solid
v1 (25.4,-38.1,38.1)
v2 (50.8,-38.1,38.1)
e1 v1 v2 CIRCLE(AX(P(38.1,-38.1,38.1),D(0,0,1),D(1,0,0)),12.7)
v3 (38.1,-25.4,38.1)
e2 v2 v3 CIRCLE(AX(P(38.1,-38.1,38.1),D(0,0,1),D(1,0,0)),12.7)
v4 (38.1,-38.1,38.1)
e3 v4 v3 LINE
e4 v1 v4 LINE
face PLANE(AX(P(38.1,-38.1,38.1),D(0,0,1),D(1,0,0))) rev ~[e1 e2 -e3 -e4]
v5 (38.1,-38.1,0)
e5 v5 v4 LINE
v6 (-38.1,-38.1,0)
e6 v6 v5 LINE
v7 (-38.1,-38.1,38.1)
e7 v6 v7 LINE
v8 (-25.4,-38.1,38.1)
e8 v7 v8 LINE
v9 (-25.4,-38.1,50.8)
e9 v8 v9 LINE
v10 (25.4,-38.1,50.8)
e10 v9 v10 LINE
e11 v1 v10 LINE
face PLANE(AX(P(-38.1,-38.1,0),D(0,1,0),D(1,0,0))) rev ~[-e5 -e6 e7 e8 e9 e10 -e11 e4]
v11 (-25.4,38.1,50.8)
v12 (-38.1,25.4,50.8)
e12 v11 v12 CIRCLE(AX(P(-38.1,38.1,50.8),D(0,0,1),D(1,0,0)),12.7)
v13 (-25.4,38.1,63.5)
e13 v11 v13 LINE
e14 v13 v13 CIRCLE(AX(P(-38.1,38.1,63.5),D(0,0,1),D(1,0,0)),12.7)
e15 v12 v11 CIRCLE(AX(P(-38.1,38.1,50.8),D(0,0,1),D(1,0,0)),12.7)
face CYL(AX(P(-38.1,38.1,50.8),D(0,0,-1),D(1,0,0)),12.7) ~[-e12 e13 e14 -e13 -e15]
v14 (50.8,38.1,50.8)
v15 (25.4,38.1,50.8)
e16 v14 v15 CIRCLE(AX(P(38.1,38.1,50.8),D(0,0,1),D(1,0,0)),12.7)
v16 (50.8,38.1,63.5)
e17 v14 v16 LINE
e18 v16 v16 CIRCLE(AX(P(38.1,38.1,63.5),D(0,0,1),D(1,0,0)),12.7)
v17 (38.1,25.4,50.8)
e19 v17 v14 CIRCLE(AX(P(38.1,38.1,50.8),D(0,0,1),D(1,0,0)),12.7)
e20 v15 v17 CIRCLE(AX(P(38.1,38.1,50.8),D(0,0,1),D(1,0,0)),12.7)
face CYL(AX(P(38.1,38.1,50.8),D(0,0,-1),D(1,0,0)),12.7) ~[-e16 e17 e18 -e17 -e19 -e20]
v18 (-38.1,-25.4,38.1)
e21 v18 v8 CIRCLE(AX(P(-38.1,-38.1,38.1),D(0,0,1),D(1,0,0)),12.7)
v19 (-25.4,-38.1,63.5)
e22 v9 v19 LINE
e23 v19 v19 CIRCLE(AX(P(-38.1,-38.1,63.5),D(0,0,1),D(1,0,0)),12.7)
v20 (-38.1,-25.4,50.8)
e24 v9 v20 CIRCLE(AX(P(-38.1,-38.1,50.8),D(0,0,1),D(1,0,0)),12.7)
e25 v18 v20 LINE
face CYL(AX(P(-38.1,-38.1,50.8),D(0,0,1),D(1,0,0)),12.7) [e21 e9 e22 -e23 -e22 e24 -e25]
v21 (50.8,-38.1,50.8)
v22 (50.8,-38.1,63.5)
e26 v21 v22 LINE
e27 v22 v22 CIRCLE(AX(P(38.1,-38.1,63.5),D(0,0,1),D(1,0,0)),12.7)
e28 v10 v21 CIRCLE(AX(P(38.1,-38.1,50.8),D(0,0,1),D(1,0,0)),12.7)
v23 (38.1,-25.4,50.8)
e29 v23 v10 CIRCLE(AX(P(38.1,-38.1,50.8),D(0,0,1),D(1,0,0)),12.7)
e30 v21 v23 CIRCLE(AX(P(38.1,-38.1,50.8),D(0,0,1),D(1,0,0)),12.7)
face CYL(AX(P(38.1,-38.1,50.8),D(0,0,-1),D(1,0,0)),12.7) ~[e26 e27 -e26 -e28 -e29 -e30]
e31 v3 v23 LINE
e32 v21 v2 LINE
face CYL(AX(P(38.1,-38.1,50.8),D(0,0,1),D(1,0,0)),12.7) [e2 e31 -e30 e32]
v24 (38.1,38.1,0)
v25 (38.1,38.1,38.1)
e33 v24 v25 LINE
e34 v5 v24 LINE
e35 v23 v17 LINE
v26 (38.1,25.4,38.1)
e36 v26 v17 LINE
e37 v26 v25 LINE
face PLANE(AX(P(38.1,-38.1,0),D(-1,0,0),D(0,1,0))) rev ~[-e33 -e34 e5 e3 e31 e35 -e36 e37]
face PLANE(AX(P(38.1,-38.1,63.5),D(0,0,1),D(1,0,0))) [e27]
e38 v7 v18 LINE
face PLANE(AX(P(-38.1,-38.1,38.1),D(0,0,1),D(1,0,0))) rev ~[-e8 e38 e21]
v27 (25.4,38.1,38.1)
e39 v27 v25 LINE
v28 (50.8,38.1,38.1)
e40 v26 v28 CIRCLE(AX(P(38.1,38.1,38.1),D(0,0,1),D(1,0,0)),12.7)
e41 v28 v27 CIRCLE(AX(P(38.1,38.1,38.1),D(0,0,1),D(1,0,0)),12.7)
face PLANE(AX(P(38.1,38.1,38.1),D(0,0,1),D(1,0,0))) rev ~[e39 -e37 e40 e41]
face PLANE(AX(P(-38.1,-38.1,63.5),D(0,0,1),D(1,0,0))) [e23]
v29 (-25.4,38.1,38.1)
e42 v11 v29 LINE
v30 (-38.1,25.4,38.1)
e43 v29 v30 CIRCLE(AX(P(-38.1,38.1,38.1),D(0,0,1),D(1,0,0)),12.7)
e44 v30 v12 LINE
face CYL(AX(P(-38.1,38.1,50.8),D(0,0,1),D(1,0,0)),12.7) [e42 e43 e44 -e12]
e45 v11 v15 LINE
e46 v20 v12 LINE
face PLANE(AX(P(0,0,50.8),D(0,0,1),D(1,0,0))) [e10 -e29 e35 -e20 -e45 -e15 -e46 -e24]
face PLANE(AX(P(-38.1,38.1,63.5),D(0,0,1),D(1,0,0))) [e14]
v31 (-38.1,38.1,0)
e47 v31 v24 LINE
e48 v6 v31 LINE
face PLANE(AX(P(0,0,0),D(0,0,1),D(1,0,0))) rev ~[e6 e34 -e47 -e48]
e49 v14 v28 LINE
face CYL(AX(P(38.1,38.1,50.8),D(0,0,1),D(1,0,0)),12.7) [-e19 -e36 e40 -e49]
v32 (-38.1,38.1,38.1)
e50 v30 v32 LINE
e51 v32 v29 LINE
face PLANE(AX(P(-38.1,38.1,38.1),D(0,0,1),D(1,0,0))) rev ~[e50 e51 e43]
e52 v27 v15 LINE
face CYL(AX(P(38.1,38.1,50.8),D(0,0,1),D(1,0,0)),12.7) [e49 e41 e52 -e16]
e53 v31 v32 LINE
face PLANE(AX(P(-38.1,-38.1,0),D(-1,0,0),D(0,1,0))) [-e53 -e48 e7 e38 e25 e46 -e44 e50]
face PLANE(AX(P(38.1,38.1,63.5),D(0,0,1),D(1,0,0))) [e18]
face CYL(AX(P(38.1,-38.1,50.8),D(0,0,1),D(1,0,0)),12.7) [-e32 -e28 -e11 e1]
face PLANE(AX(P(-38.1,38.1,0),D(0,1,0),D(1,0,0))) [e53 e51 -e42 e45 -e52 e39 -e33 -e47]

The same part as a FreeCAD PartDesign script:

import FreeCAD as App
import Part
import Sketcher
from FreeCAD import Vector
Q = App.Units.Quantity

doc = App.newDocument("Part")
body = doc.addObject("PartDesign::Body", "Body")

# Sketch on XY plane
sketch1 = body.newObject("Sketcher::SketchObject", "Sketch")
sketch1.AttachmentSupport = (doc.getObject("XY_Plane"), [""])
sketch1.MapMode = "FlatFace"
sketch1.addGeometry(Part.LineSegment(Vector(-38, 38, 0), Vector(-38, -38, 0)), False)
sketch1.addGeometry(Part.LineSegment(Vector(-38, -38, 0), Vector(38, -38, 0)), False)
sketch1.addGeometry(Part.LineSegment(Vector(38, -38, 0), Vector(38, 38, 0)), False)
sketch1.addGeometry(Part.LineSegment(Vector(38, 38, 0), Vector(-38, 38, 0)), False)
sketch1.addConstraint(Sketcher.Constraint("Coincident", 0, 2, 1, 1))
sketch1.addConstraint(Sketcher.Constraint("Coincident", 1, 2, 2, 1))
sketch1.addConstraint(Sketcher.Constraint("Coincident", 2, 2, 3, 1))
sketch1.addConstraint(Sketcher.Constraint("Coincident", 3, 2, 0, 1))
sketch1.addConstraint(Sketcher.Constraint("Vertical", 0))
sketch1.addConstraint(Sketcher.Constraint("Horizontal", 1))
sketch1.addConstraint(Sketcher.Constraint("Vertical", 2))
sketch1.addConstraint(Sketcher.Constraint("Horizontal", 3))
sketch1.addConstraint(Sketcher.Constraint("Symmetric", 0, 2, 2, 2, -1, 1))
sketch1.addConstraint(Sketcher.Constraint("Equal", 3, 0))
sketch1.addConstraint(Sketcher.Constraint("DistanceX", 1, 1, 1, 2, Q("3 in")))
pad1 = body.newObject("PartDesign::Pad", "Pad")
pad1.Profile = sketch1
pad1.Length = Q("2 in")

# Sketch on XY plane
sketch2 = body.newObject("Sketcher::SketchObject", "Sketch001")
sketch2.AttachmentSupport = (doc.getObject("XY_Plane"), [""])
sketch2.MapMode = "FlatFace"
sketch2.AttachmentOffset = App.Placement(Vector(0, 0, 2 * 25.4), App.Rotation())
sketch2.addGeometry(Part.Circle(Vector(-38, 38, 0), Vector(0, 0, 1), 13), False)
sketch2.addGeometry(Part.Circle(Vector(38, 38, 0), Vector(0, 0, 1), 13), False)
sketch2.addGeometry(Part.Circle(Vector(38, -38, 0), Vector(0, 0, 1), 13), False)
sketch2.addGeometry(Part.Circle(Vector(-38, -38, 0), Vector(0, 0, 1), 13), False)
sketch2.addConstraint(Sketcher.Constraint("Equal", 0, 1))
sketch2.addConstraint(Sketcher.Constraint("Equal", 1, 2))
sketch2.addConstraint(Sketcher.Constraint("Equal", 2, 3))
sketch2.addConstraint(Sketcher.Constraint("Symmetric", 0, 3, 2, 3, -1, 1))
sketch2.addConstraint(Sketcher.Constraint("Symmetric", 1, 3, 3, 3, -1, 1))
sketch2.addConstraint(Sketcher.Constraint("Symmetric", 0, 3, 1, 3, -2))
sketch2.addConstraint(Sketcher.Constraint("Diameter", 0, Q("1 in")))
sketch2.addConstraint(Sketcher.Constraint("DistanceX", 0, 3, 1, 3, Q("3 in")))
sketch2.addConstraint(Sketcher.Constraint("DistanceY", 2, 3, 1, 3, Q("3 in")))
pad2 = body.newObject("PartDesign::Pad", "Pad001")
pad2.Profile = sketch2
pad2.Length = Q("1 in")
pad2.Midplane = True

doc.recompute()
